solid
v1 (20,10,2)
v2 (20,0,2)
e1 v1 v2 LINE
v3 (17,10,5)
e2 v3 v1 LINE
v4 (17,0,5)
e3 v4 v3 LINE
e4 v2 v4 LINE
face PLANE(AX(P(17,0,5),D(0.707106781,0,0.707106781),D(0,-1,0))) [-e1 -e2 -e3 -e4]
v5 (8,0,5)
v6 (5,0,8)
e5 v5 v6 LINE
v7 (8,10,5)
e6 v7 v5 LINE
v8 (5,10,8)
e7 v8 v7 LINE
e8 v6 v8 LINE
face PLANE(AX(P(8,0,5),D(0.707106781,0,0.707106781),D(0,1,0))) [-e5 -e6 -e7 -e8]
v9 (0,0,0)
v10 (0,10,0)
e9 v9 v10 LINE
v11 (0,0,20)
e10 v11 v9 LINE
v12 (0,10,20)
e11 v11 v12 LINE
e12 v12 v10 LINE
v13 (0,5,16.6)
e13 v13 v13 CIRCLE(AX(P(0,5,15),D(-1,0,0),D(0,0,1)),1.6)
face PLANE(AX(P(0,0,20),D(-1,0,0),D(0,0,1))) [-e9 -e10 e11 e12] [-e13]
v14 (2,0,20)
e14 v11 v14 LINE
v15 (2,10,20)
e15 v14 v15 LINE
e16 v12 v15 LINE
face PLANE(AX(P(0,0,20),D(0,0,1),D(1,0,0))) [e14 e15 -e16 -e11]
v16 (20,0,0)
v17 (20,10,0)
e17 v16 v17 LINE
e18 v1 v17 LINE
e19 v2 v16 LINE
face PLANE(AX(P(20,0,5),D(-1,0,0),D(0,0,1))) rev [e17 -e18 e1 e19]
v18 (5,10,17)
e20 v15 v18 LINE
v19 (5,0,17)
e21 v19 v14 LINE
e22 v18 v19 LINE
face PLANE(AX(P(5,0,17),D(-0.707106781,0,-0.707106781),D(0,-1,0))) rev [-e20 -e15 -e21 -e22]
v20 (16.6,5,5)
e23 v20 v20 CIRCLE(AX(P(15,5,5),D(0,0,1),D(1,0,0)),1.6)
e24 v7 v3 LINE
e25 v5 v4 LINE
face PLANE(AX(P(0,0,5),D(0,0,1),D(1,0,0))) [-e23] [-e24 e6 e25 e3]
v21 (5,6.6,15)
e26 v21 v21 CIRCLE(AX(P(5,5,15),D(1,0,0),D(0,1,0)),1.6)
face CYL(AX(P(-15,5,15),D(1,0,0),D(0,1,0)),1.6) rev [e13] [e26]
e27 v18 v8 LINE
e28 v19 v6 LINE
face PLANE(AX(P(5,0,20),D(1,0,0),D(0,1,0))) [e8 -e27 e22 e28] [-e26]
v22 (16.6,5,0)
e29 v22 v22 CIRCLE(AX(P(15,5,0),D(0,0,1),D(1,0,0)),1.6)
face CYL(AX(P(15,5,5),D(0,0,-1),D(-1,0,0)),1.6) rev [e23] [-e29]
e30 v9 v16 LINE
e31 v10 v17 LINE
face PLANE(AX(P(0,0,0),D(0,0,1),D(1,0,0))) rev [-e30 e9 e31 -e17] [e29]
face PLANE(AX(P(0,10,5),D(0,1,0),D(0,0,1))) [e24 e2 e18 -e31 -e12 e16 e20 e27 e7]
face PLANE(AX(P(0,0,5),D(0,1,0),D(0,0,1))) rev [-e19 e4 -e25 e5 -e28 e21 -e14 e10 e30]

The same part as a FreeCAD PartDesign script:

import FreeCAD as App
import Part
import Sketcher


def edges_at(feature, points):
    """Names of the edges that pass closest to the given points."""
    edges = feature.Shape.Edges
    near = lambda p: min(range(len(edges)), key=lambda i: edges[i].distToShape(Part.Vertex(*p))[0])
    return sorted({f"Edge{near(p) + 1}" for p in points})

doc = App.newDocument("Part")
body = doc.addObject("PartDesign::Body", "Body")

sketch1 = body.newObject("Sketcher::SketchObject", "Sketch")
sketch1.AttachmentSupport = (doc.getObject("XY_Plane"), [""])
sketch1.MapMode = "FlatFace"
sketch1.addGeometry([
    Part.LineSegment(App.Vector(5, 10, 0), App.Vector(5, 0, 0)),
    Part.LineSegment(App.Vector(5, 0, 0), App.Vector(20, 0, 0)),
    Part.LineSegment(App.Vector(20, 0, 0), App.Vector(20, 10, 0)),
    Part.LineSegment(App.Vector(20, 10, 0), App.Vector(5, 10, 0)),
    Part.Circle(App.Vector(15, 5, 0), App.Vector(0, 0, 1), 1.6),
], False)
sketch1.addConstraint([
    Sketcher.Constraint("Coincident", 0, 2, 1, 1),
    Sketcher.Constraint("Coincident", 1, 2, 2, 1),
    Sketcher.Constraint("Coincident", 2, 2, 3, 1),
    Sketcher.Constraint("Coincident", 3, 2, 0, 1),
    Sketcher.Constraint("Vertical", 0),
    Sketcher.Constraint("Horizontal", 1),
    Sketcher.Constraint("Vertical", 2),
    Sketcher.Constraint("Horizontal", 3),
    Sketcher.Constraint("PointOnObject", 0, 2, -1),
    Sketcher.Constraint("Diameter", 4, 3.2),
    Sketcher.Constraint("DistanceX", 1, 1, 1, 2, 15.0),
    Sketcher.Constraint("DistanceY", 0, 2, 0, 1, 10.0),
    Sketcher.Constraint("DistanceX", -1, 1, 4, 3, 15.0),
    Sketcher.Constraint("DistanceY", -1, 1, 4, 3, 5.0),
    Sketcher.Constraint("DistanceX", -1, 1, 0, 2, 5.0),
])
pad1 = body.newObject("PartDesign::Pad", "Pad")
pad1.Profile = sketch1
pad1.Length = 5

sketch2 = body.newObject("Sketcher::SketchObject", "Sketch001")
sketch2.AttachmentSupport = (doc.getObject("XY_Plane"), [""])
sketch2.MapMode = "FlatFace"
sketch2.addGeometry([
    Part.LineSegment(App.Vector(0, 10, 0), App.Vector(0, 0, 0)),
    Part.LineSegment(App.Vector(0, 0, 0), App.Vector(5, 0, 0)),
    Part.LineSegment(App.Vector(5, 0, 0), App.Vector(5, 10, 0)),
    Part.LineSegment(App.Vector(5, 10, 0), App.Vector(0, 10, 0)),
], False)
sketch2.addConstraint([
    Sketcher.Constraint("Coincident", 0, 2, 1, 1),
    Sketcher.Constraint("Coincident", 1, 2, 2, 1),
    Sketcher.Constraint("Coincident", 2, 2, 3, 1),
    Sketcher.Constraint("Coincident", 3, 2, 0, 1),
    Sketcher.Constraint("Vertical", 0),
    Sketcher.Constraint("Horizontal", 1),
    Sketcher.Constraint("Vertical", 2),
    Sketcher.Constraint("Horizontal", 3),
    Sketcher.Constraint("Coincident", 0, 2, -1, 1),
    Sketcher.Constraint("DistanceX", 1, 1, 1, 2, 5.0),
    Sketcher.Constraint("DistanceY", 0, 2, 0, 1, 10.0),
])
pad2 = body.newObject("PartDesign::Pad", "Pad001")
pad2.Profile = sketch2
pad2.Length = 20

sketch3 = body.newObject("Sketcher::SketchObject", "Sketch002")
sketch3.AttachmentSupport = (doc.getObject("YZ_Plane"), [""])
sketch3.MapMode = "FlatFace"
sketch3.AttachmentOffset = App.Placement(App.Vector(0, 0, 5), App.Rotation())
sketch3.addGeometry(Part.Circle(App.Vector(5, 15, 0), App.Vector(0, 0, 1), 1.6), False)
sketch3.addConstraint([
    Sketcher.Constraint("Diameter", 0, 3.2),
    Sketcher.Constraint("DistanceX", -1, 1, 0, 3, 5.0),
    Sketcher.Constraint("DistanceY", -1, 1, 0, 3, 15.0),
])
pocket1 = body.newObject("PartDesign::Pocket", "Pocket")
pocket1.Profile = sketch3
pocket1.Length = 20
doc.recompute()

chamfer = body.newObject("PartDesign::Chamfer", "Chamfer")
chamfer.Base = (pocket1, edges_at(pocket1, [(5, 5, 20), (20, 5, 5), (5, 5, 5)]))
chamfer.Size = 3

doc.recompute()
